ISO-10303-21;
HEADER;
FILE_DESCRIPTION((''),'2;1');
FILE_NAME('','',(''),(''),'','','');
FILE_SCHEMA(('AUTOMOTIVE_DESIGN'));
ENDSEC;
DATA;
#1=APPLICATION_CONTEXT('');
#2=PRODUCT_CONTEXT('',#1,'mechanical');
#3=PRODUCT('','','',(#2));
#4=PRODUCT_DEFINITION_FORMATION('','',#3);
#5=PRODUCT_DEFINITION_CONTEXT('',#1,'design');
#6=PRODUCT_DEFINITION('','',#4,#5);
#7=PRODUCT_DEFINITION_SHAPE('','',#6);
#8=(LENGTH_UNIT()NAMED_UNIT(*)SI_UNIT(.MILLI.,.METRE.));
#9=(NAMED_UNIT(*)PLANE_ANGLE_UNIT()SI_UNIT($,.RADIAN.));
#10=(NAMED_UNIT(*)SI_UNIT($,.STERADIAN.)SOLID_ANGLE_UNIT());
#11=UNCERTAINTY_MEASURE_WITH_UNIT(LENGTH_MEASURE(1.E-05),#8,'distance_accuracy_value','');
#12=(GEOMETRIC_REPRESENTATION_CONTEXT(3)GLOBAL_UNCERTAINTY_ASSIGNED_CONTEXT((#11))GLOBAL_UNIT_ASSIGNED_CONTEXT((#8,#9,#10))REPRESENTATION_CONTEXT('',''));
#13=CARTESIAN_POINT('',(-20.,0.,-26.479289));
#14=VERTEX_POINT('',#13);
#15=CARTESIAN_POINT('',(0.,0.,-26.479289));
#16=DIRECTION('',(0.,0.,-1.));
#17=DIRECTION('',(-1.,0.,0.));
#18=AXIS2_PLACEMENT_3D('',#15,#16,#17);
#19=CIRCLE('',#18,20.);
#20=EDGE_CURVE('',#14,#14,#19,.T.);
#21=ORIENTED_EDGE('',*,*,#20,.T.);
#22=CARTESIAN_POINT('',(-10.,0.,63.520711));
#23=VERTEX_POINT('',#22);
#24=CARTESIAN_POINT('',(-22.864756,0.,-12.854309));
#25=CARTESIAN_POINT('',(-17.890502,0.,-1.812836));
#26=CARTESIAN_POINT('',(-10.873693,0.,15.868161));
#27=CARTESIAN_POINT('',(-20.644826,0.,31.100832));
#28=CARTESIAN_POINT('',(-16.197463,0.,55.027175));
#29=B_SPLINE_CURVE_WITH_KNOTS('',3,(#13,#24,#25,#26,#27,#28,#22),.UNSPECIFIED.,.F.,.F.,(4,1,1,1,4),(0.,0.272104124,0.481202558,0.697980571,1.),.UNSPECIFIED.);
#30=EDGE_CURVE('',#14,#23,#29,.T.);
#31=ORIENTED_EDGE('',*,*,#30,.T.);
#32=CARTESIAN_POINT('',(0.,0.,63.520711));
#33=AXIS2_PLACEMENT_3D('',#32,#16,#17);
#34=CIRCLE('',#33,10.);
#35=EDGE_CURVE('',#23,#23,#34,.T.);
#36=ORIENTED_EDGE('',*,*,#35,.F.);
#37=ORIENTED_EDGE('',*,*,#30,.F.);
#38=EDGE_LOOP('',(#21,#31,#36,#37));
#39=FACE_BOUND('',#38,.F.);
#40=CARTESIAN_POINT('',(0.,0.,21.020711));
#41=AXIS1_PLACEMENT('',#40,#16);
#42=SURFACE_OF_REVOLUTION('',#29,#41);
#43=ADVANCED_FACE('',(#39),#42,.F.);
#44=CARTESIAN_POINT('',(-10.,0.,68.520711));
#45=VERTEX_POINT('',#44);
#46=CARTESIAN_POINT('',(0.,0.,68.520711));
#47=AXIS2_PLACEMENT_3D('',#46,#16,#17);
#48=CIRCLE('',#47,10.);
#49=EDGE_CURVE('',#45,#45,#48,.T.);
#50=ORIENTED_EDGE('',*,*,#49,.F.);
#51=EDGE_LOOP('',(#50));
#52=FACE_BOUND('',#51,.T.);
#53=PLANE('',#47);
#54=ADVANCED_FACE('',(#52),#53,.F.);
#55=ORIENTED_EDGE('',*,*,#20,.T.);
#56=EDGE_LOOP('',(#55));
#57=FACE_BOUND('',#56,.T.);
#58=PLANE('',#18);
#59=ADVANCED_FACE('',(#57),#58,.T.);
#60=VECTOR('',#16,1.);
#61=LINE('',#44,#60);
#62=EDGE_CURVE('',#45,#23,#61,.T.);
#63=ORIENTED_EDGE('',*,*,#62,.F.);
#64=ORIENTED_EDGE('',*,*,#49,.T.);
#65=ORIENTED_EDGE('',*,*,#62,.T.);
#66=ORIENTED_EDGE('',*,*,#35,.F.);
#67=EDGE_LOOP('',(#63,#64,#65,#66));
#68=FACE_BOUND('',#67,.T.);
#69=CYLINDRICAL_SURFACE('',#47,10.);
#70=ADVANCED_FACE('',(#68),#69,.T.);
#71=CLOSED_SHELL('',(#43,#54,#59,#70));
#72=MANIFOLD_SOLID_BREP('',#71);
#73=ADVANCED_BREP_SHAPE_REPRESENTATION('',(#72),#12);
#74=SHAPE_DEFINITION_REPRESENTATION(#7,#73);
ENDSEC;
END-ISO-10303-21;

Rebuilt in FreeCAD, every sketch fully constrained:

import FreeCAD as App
import Part
import Sketcher

V = App.Vector
Q = App.Units.Quantity

doc = App.newDocument("Part")
body = doc.addObject("PartDesign::Body", "Body")

sketch1 = body.newObject("Sketcher::SketchObject", "Sketch")
sketch1.AttachmentSupport = (doc.getObject("XZ_Plane"), [""])
sketch1.MapMode = "FlatFace"
sketch1.addGeometry(Part.LineSegment(V(-20, -26.479289, 0), V(0, -26.479289, 0)), False)
sketch1.addGeometry(Part.LineSegment(V(0, -26.479289, 0), V(0, 68.520711, 0)), False)
sketch1.addGeometry(Part.LineSegment(V(0, 68.520711, 0), V(-10, 68.520711, 0)), False)
sketch1.addGeometry(Part.LineSegment(V(-10, 68.520711, 0), V(-10, 63.520711, 0)), False)
sketch1.addGeometry(Part.BSplineCurve([V(-20, -26.479289, 0), V(-22.864756, -12.854309, 0), V(-17.890502, -1.812836, 0), V(-10.873693, 15.868161, 0), V(-20.644826, 31.100832, 0), V(-16.197463, 55.027175, 0), V(-10, 63.520711, 0)], [4, 1, 1, 1, 4], [0, 0.272104124, 0.481202558, 0.697980571, 1], False, 3, [1, 1, 1, 1, 1, 1, 1], False), False)
sketch1.addConstraint(Sketcher.Constraint("Block", 4))
sketch1.addConstraint(Sketcher.Constraint("Coincident", 0, 2, 1, 1))
sketch1.addConstraint(Sketcher.Constraint("Coincident", 1, 2, 2, 1))
sketch1.addConstraint(Sketcher.Constraint("Coincident", 2, 2, 3, 1))
sketch1.addConstraint(Sketcher.Constraint("Coincident", 3, 2, 4, 2))
sketch1.addConstraint(Sketcher.Constraint("Coincident", 4, 1, 0, 1))
sketch1.addConstraint(Sketcher.Constraint("Horizontal", 0))
sketch1.addConstraint(Sketcher.Constraint("Vertical", 1))
sketch1.addConstraint(Sketcher.Constraint("Horizontal", 2))
sketch1.addConstraint(Sketcher.Constraint("Vertical", 3))
sketch1.addConstraint(Sketcher.Constraint("PointOnObject", 0, 2, -2))
sketch1.addConstraint(Sketcher.Constraint("DistanceY", 1, 1, 1, 2, Q("95 mm")))
revolution = body.newObject("PartDesign::Revolution", "Revolution")
revolution.Profile = sketch1
revolution.ReferenceAxis = (sketch1, ["V_Axis"])
revolution.Angle = 360

doc.recompute()
